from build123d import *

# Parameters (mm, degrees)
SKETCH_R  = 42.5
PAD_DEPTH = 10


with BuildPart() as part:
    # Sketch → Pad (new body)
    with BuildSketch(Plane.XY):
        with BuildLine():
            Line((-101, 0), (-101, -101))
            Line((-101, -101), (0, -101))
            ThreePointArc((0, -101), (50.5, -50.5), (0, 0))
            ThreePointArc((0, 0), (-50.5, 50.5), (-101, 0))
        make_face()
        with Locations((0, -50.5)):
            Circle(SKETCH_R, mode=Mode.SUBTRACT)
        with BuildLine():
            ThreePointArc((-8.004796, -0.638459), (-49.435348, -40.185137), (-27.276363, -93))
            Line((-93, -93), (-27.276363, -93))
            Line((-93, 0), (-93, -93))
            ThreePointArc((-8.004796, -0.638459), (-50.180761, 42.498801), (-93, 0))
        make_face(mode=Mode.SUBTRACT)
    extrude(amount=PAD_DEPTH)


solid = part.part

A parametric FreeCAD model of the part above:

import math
import FreeCAD as App
import Part
import Sketcher
from FreeCAD import Vector

doc = App.newDocument("Part")
body = doc.addObject("PartDesign::Body", "Body")

# Sketch on XY plane
sketch1 = body.newObject("Sketcher::SketchObject", "Sketch")
sketch1.AttachmentSupport = (doc.getObject("XY_Plane"), [""])
sketch1.MapMode = "FlatFace"
sketch1.addGeometry(Part.LineSegment(Vector(-101, 0, 0), Vector(-101, -101, 0)), False)
sketch1.addGeometry(Part.LineSegment(Vector(-101, -101, 0), Vector(0, -101, 0)), False)
sketch1.addGeometry(Part.ArcOfCircle(Part.Circle(Vector(0, -50.5, 0), Vector(0, 0, 1), 50.5), math.radians(-90), math.radians(90)), False)
sketch1.addGeometry(Part.ArcOfCircle(Part.Circle(Vector(-50.5, 0, 0), Vector(0, 0, 1), 50.5), math.radians(0), math.radians(180)), False)
sketch1.addGeometry(Part.Circle(Vector(0, -50.5, 0), Vector(0, 0, 1), 42.5), False)
sketch1.addGeometry(Part.ArcOfCircle(Part.Circle(Vector(-50.5, 0, 0), Vector(0, 0, 1), 42.5), math.radians(-0.860762), math.radians(180)), False)
sketch1.addGeometry(Part.ArcOfCircle(Part.Circle(Vector(0, -50.5, 0), Vector(0, 0, 1), 50.5), math.radians(99.120469), math.radians(237.307784)), False)
sketch1.addGeometry(Part.LineSegment(Vector(-27.276363, -93, 0), Vector(-93, -93, 0)), False)
sketch1.addGeometry(Part.LineSegment(Vector(-93, -93, 0), Vector(-93, 0, 0)), False)
sketch1.addConstraint(Sketcher.Constraint("Coincident", 0, 2, 1, 1))
sketch1.addConstraint(Sketcher.Constraint("Tangent", 1, 2, 2, 1))
sketch1.addConstraint(Sketcher.Constraint("Coincident", 2, 2, 3, 1))
sketch1.addConstraint(Sketcher.Constraint("Tangent", 3, 2, 0, 1))
sketch1.addConstraint(Sketcher.Constraint("Coincident", 5, 1, 6, 1))
sketch1.addConstraint(Sketcher.Constraint("Coincident", 6, 2, 7, 1))
sketch1.addConstraint(Sketcher.Constraint("Coincident", 7, 2, 8, 1))
sketch1.addConstraint(Sketcher.Constraint("Tangent", 8, 2, 5, 2))
sketch1.addConstraint(Sketcher.Constraint("Vertical", 0))
sketch1.addConstraint(Sketcher.Constraint("Horizontal", 1))
sketch1.addConstraint(Sketcher.Constraint("Horizontal", 7))
sketch1.addConstraint(Sketcher.Constraint("Vertical", 8))
sketch1.addConstraint(Sketcher.Constraint("Coincident", 2, 2, -1, 1))
sketch1.addConstraint(Sketcher.Constraint("Coincident", 4, 3, 2, 3))
sketch1.addConstraint(Sketcher.Constraint("Coincident", 5, 3, 3, 3))
sketch1.addConstraint(Sketcher.Constraint("Coincident", 6, 3, 2, 3))
sketch1.addConstraint(Sketcher.Constraint("Equal", 2, 3))
sketch1.addConstraint(Sketcher.Constraint("Equal", 4, 5))
sketch1.addConstraint(Sketcher.Constraint("Equal", 3, 6))
sketch1.addConstraint(Sketcher.Constraint("PointOnObject", 2, 3, -2))
sketch1.addConstraint(Sketcher.Constraint("PointOnObject", 3, 3, -1))
sketch1.addConstraint(Sketcher.Constraint("Diameter", 4, 85.0))
sketch1.addConstraint(Sketcher.Constraint("Radius", 2, 50.5))
sketch1.addConstraint(Sketcher.Constraint("DistanceY", 8, 1, 8, 2, 93.0))
pad1 = body.newObject("PartDesign::Pad", "Pad")
pad1.Profile = sketch1
pad1.Length = 10

doc.recompute()
